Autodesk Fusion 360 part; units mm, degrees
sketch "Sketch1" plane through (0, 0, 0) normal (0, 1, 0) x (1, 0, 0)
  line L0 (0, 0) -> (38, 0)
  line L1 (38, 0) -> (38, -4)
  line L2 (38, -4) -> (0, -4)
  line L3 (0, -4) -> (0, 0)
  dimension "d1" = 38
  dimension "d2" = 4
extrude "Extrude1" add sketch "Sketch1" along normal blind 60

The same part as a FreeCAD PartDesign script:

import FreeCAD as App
import Part
import Sketcher

V = App.Vector
Q = App.Units.Quantity


def add_polygon(sketch, points):
    """Adds a closed chain of lines whose ends are joined by coincident constraints."""
    first, n = sketch.GeometryCount, len(points)
    for a, b in zip(points, points[1:] + points[:1]):
        sketch.addGeometry(Part.LineSegment(App.Vector(*a, 0), App.Vector(*b, 0)), False)
    for i in range(n):
        sketch.addConstraint(Sketcher.Constraint("Coincident", first + i, 2, first + (i + 1) % n, 1))

doc = App.newDocument("Part")
body = doc.addObject("PartDesign::Body", "Body")

# Sketch on XZ plane
sketch1 = doc.addObject("Sketcher::SketchObject", "Sketch")
body.addObject(sketch1)
sketch1.AttachmentSupport = (doc.XZ_Plane, [""])
sketch1.MapMode = "FlatFace"
add_polygon(sketch1, [(38, 0), (0, 0), (0, 4), (38, 4)])  # lines 0-3
sketch1.addConstraint([
    Sketcher.Constraint("Horizontal", 0),
    Sketcher.Constraint("Vertical", 1),
    Sketcher.Constraint("Horizontal", 2),
    Sketcher.Constraint("Vertical", 3),
    Sketcher.Constraint("Coincident", 0, 2, -1, 1),
    Sketcher.Constraint("DistanceX", 0, 2, 0, 1, Q("38 mm")),
    Sketcher.Constraint("DistanceY", 1, 1, 1, 2, Q("4 mm")),
])
pad1 = doc.addObject("PartDesign::Pad", "Pad")
body.addObject(pad1)
pad1.Profile = sketch1
pad1.Length = 60
pad1.Reversed = True

doc.recompute()
